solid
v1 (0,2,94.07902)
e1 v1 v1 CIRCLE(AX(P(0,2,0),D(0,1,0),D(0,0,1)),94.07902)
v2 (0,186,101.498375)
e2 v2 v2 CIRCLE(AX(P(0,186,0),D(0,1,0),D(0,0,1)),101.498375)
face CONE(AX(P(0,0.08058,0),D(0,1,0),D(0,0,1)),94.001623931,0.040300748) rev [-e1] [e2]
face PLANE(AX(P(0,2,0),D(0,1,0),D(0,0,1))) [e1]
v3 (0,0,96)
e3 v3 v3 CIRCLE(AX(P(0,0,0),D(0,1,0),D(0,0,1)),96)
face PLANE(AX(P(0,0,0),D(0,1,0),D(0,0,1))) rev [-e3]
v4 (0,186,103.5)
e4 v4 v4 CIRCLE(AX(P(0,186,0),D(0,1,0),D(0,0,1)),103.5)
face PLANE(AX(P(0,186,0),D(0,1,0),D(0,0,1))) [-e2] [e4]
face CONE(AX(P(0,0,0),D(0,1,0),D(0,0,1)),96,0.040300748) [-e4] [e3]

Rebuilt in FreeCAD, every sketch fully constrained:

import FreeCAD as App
import Part
import Sketcher
from FreeCAD import Vector


def faces_at(feature, points):
    """Names of the faces that lie closest to the given points."""
    faces = feature.Shape.Faces
    near = lambda p: min(range(len(faces)), key=lambda i: faces[i].distToShape(Part.Vertex(*p))[0])
    return sorted({f"Face{near(p) + 1}" for p in points})

doc = App.newDocument("Part")
body = doc.addObject("PartDesign::Body", "Body")

sketch1 = body.newObject("Sketcher::SketchObject", "Sketch")
sketch1.AttachmentSupport = (doc.getObject("XZ_Plane"), [""])
sketch1.MapMode = "FlatFace"
sketch1.addGeometry(Part.Circle(Vector(0, 0, 0), Vector(0, 0, 1), 96), False)
sketch1.addConstraint([
    Sketcher.Constraint("Coincident", 0, 3, -1, 1),
    Sketcher.Constraint("Diameter", 0, 192.0),
])

sketch2 = body.newObject("Sketcher::SketchObject", "Sketch001")
sketch2.AttachmentSupport = (doc.getObject("XZ_Plane"), [""])
sketch2.MapMode = "FlatFace"
sketch2.AttachmentOffset = App.Placement(Vector(0, 0, -186), App.Rotation())
sketch2.addGeometry(Part.Circle(Vector(0, 0, 0), Vector(0, 0, 1), 103.5), False)
sketch2.addConstraint([
    Sketcher.Constraint("Coincident", 0, 3, -1, 1),
    Sketcher.Constraint("Diameter", 0, 207.0),
])

additiveloft = body.newObject("PartDesign::AdditiveLoft", "AdditiveLoft")
additiveloft.Profile = sketch1
additiveloft.Sections = [sketch2]
doc.recompute()

thickness = body.newObject("PartDesign::Thickness", "Thickness")
thickness.Base = (additiveloft, faces_at(additiveloft, [(0, 186, 0)]))
thickness.Value = 2
thickness.Reversed = True
thickness.Join = "Intersection"

doc.recompute()
